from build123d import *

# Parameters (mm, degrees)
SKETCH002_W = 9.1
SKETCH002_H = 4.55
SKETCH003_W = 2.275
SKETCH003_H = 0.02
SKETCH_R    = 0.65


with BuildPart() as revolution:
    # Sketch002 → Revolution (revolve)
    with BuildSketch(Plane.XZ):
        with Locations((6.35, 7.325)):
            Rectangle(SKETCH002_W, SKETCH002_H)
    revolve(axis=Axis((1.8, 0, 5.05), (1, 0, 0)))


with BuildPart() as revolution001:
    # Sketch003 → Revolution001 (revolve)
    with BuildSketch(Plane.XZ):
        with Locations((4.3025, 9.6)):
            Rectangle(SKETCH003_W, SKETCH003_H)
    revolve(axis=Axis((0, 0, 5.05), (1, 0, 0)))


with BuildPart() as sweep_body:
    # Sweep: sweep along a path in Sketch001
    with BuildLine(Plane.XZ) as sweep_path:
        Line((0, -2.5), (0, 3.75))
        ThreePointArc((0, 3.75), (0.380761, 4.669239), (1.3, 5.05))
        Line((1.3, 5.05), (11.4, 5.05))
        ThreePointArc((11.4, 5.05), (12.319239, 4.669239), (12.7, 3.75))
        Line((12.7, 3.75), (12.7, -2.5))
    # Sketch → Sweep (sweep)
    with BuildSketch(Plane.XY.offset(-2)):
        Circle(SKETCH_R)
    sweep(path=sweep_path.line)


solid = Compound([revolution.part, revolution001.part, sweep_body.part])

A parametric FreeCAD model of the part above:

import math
import FreeCAD as App
import Part
import Sketcher
Q = App.Units.Quantity

doc = App.newDocument("Part")
body = doc.addObject("PartDesign::Body", "Body")

sketch1 = doc.addObject("Sketcher::SketchObject", "Sketch")
body.addObject(sketch1)
sketch1.AttachmentSupport = (doc.XZ_Plane, [""])
sketch1.MapMode = "FlatFace"
sketch1.addGeometry([
    Part.LineSegment(App.Vector(1.8, 9.6, 0), App.Vector(1.8, 5.05, 0)),
    Part.LineSegment(App.Vector(1.8, 5.05, 0), App.Vector(10.9, 5.05, 0)),
    Part.LineSegment(App.Vector(10.9, 5.05, 0), App.Vector(10.9, 9.6, 0)),
    Part.LineSegment(App.Vector(10.9, 9.6, 0), App.Vector(1.8, 9.6, 0)),
], False)
sketch1.addGeometry(Part.LineSegment(App.Vector(1.8, 5.05, 0), App.Vector(10.9, 5.05, 0)), True)
sketch1.addConstraint([
    Sketcher.Constraint("Coincident", 0, 2, 1, 1),
    Sketcher.Constraint("Coincident", 1, 2, 2, 1),
    Sketcher.Constraint("Coincident", 2, 2, 3, 1),
    Sketcher.Constraint("Coincident", 3, 2, 0, 1),
    Sketcher.Constraint("Vertical", 0),
    Sketcher.Constraint("Horizontal", 1),
    Sketcher.Constraint("Vertical", 2),
    Sketcher.Constraint("Horizontal", 3),
    Sketcher.Constraint("Horizontal", 4),
    Sketcher.Constraint("Coincident", 4, 1, 0, 2),
    Sketcher.Constraint("Vertical", 2, 2, 4, 2),
    Sketcher.Constraint("DistanceX", 1, 1, 1, 2, Q("9.1 mm")),
    Sketcher.Constraint("DistanceY", 0, 2, 0, 1, Q("4.55 mm")),
    Sketcher.Constraint("DistanceX", -1, 1, 0, 2, Q("1.8 mm")),
    Sketcher.Constraint("DistanceY", -1, 1, 2, 2, Q("9.6 mm")),
])
revolution = doc.addObject("PartDesign::Revolution", "Revolution")
body.addObject(revolution)
revolution.Profile = sketch1
revolution.ReferenceAxis = (sketch1, ["Axis0"])
revolution.Angle = 360
body2 = doc.addObject("PartDesign::Body", "Body001")

sketch2 = doc.addObject("Sketcher::SketchObject", "Sketch001")
body2.addObject(sketch2)
sketch2.AttachmentSupport = (doc.getObject("XZ_Plane001"), [""])
sketch2.MapMode = "FlatFace"
sketch2.addGeometry([
    Part.LineSegment(App.Vector(3.165, 9.61, 0), App.Vector(3.165, 9.59, 0)),
    Part.LineSegment(App.Vector(3.165, 9.59, 0), App.Vector(5.44, 9.59, 0)),
    Part.LineSegment(App.Vector(5.44, 9.59, 0), App.Vector(5.44, 9.61, 0)),
    Part.LineSegment(App.Vector(5.44, 9.61, 0), App.Vector(3.165, 9.61, 0)),
], False)
sketch2.addGeometry(Part.LineSegment(App.Vector(3.165, 5.05, 0), App.Vector(5.44, 5.05, 0)), True)
sketch2.addConstraint([
    Sketcher.Constraint("Coincident", 0, 2, 1, 1),
    Sketcher.Constraint("Coincident", 1, 2, 2, 1),
    Sketcher.Constraint("Coincident", 2, 2, 3, 1),
    Sketcher.Constraint("Coincident", 3, 2, 0, 1),
    Sketcher.Constraint("Vertical", 0),
    Sketcher.Constraint("Horizontal", 1),
    Sketcher.Constraint("Vertical", 2),
    Sketcher.Constraint("Horizontal", 3),
    Sketcher.Constraint("Horizontal", 4),
    Sketcher.Constraint("Vertical", 3, 2, 4, 1),
    Sketcher.Constraint("Vertical", 2, 2, 4, 2),
    Sketcher.Constraint("DistanceY", 0, 2, 0, 1, Q("0.02 mm")),
    Sketcher.Constraint("DistanceX", 1, 1, 1, 2, Q("2.275 mm")),
    Sketcher.Constraint("DistanceY", -1, 1, 0, 2, Q("9.59 mm")),
    Sketcher.Constraint("DistanceX", -1, 1, 1, 2, Q("5.44 mm")),
    Sketcher.Constraint("DistanceY", -1, 1, 4, 1, Q("5.05 mm")),
])
revolution2 = doc.addObject("PartDesign::Revolution", "Revolution001")
body2.addObject(revolution2)
revolution2.Profile = sketch2
revolution2.ReferenceAxis = (sketch2, ["Axis0"])
revolution2.Angle = 360
body3 = doc.addObject("PartDesign::Body", "Body002")

sketch3 = doc.addObject("Sketcher::SketchObject", "Sketch002")
body3.addObject(sketch3)
sketch3.AttachmentSupport = (doc.getObject("XY_Plane002"), [""])
sketch3.MapMode = "FlatFace"
sketch3.AttachmentOffset = App.Placement(App.Vector(0, 0, -2), App.Rotation())
sketch3.addGeometry(Part.Circle(App.Vector(0, 0, 0), App.Vector(0, 0, 1), 0.65), False)
sketch3.addConstraint([
    Sketcher.Constraint("Coincident", 0, 3, -1, 1),
    Sketcher.Constraint("Diameter", 0, Q("1.3 mm")),
])

sketch4 = doc.addObject("Sketcher::SketchObject", "Sketch003")
body3.addObject(sketch4)
sketch4.AttachmentSupport = (doc.getObject("XZ_Plane002"), [""])
sketch4.MapMode = "FlatFace"
sketch4.addGeometry([
    Part.LineSegment(App.Vector(0, -2.5, 0), App.Vector(0, 3.75, 0)),
    Part.ArcOfCircle(Part.Circle(App.Vector(1.299999, 3.750001, 0), App.Vector(0, 0, 1), 1.299999), math.radians(89.999972), math.radians(180.000028)),
    Part.LineSegment(App.Vector(1.3, 5.05, 0), App.Vector(11.4, 5.05, 0)),
    Part.ArcOfCircle(Part.Circle(App.Vector(11.400001, 3.750001, 0), App.Vector(0, 0, 1), 1.299999), math.radians(-0.000028), math.radians(90.000028)),
    Part.LineSegment(App.Vector(12.7, 3.75, 0), App.Vector(12.7, -2.5, 0)),
], False)
sketch4.addConstraint([
    Sketcher.Constraint("Tangent", 0, 2, 1, 2),
    Sketcher.Constraint("Tangent", 1, 1, 2, 1),
    Sketcher.Constraint("Tangent", 2, 2, 3, 2),
    Sketcher.Constraint("Tangent", 3, 1, 4, 1),
    Sketcher.Constraint("Vertical", 0),
    Sketcher.Constraint("Horizontal", 2),
    Sketcher.Constraint("Vertical", 4),
    Sketcher.Constraint("Equal", 1, 3),
    Sketcher.Constraint("PointOnObject", 0, 1, -2),
    Sketcher.Constraint("Horizontal", 0, 1, 4, 2),
    Sketcher.Constraint("Radius", 1, Q("1.299999 mm")),
    Sketcher.Constraint("DistanceX", 2, 1, 2, 2, Q("10.1 mm")),
    Sketcher.Constraint("DistanceY", 0, 1, 0, 2, Q("6.25 mm")),
    Sketcher.Constraint("DistanceY", 0, 1, -1, 1, Q("2.5 mm")),
])
doc.recompute()

additivepipe = doc.addObject("PartDesign::AdditivePipe", "AdditivePipe")
body3.addObject(additivepipe)
additivepipe.Profile = sketch3
additivepipe.Spine = (sketch4, ["Edge1", "Edge2", "Edge3", "Edge4", "Edge5"])

doc.recompute()
